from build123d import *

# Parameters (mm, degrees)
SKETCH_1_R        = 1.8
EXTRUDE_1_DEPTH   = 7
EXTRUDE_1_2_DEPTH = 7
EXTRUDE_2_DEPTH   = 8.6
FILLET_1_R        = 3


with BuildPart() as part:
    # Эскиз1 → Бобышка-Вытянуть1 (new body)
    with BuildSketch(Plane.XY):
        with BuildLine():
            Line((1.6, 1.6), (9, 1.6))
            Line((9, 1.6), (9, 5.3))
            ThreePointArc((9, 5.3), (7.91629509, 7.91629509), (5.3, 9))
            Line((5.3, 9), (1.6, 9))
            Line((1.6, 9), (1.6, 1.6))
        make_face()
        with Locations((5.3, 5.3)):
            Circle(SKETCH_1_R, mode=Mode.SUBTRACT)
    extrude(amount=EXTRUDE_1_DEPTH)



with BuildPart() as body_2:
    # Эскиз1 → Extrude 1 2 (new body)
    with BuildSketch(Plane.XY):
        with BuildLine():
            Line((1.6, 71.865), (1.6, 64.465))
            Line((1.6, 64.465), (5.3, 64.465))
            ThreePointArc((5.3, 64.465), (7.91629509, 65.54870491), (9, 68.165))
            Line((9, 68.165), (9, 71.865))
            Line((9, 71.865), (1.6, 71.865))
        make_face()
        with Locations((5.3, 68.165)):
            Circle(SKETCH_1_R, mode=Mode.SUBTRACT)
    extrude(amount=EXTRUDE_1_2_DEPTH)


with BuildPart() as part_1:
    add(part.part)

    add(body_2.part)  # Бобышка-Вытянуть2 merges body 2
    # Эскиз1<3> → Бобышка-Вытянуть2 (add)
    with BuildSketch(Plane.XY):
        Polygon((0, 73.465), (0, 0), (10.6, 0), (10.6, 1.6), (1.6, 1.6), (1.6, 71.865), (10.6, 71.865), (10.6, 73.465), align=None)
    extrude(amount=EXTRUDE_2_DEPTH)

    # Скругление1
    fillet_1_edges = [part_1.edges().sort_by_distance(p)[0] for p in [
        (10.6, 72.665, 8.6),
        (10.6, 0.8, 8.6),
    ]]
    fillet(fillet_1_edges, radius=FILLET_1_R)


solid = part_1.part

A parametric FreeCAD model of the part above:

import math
import FreeCAD as App
import Part
import Sketcher
from FreeCAD import Vector
Q = App.Units.Quantity


def edges_at(feature, points):
    """Names of the edges that pass closest to the given points."""
    edges = feature.Shape.Edges
    near = lambda p: min(range(len(edges)), key=lambda i: edges[i].distToShape(Part.Vertex(*p))[0])
    return sorted({f"Edge{near(p) + 1}" for p in points})

doc = App.newDocument("Part")
params = doc.addObject("Spreadsheet::Sheet", "Params")
for row, (alias, value) in enumerate([
    ("sketch1_diameter", "3.6 mm"),
    ("sketch1_radius", "3.7 mm"),
    ("sketch1_width", "7.4 mm"),
    ("pad1_length", "7 mm"),
    ("sketch2_diameter", "3.6 mm"),
    ("sketch2_radius", "3.7 mm"),
    ("sketch2_width", "3.7 mm"),
    ("pad2_length", "7 mm"),
    ("sketch3_width", "9 mm"),
    ("sketch3_width2", "10.6 mm"),
    ("sketch3_height", "1.6 mm"),
    ("pad3_length", "8.6 mm"),
    ("fillet_radius", "3 mm"),
], start=1):
    params.set(f"A{row}", alias)
    params.set(f"B{row}", "=" + value)
    params.setAlias(f"B{row}", alias)

body = doc.addObject("PartDesign::Body", "Body")

# Sketch on XY plane
sketch1 = body.newObject("Sketcher::SketchObject", "Sketch")
sketch1.AttachmentSupport = (doc.getObject("XY_Plane"), [""])
sketch1.MapMode = "FlatFace"
sketch1.addGeometry(Part.LineSegment(Vector(1.6, 1.6, 0), Vector(9, 1.6, 0)), False)
sketch1.addGeometry(Part.LineSegment(Vector(9, 1.6, 0), Vector(9, 5.3, 0)), False)
sketch1.addGeometry(Part.ArcOfCircle(Part.Circle(Vector(5.3, 5.3, 0), Vector(0, 0, 1), 3.7), math.radians(0), math.radians(90)), False)
sketch1.addGeometry(Part.LineSegment(Vector(5.3, 9, 0), Vector(1.6, 9, 0)), False)
sketch1.addGeometry(Part.LineSegment(Vector(1.6, 9, 0), Vector(1.6, 1.6, 0)), False)
sketch1.addGeometry(Part.Circle(Vector(5.3, 5.3, 0), Vector(0, 0, 1), 1.8), False)
sketch1.addConstraint(Sketcher.Constraint("Coincident", 0, 2, 1, 1))
sketch1.addConstraint(Sketcher.Constraint("Tangent", 1, 2, 2, 1))
sketch1.addConstraint(Sketcher.Constraint("Tangent", 2, 2, 3, 1))
sketch1.addConstraint(Sketcher.Constraint("Coincident", 3, 2, 4, 1))
sketch1.addConstraint(Sketcher.Constraint("Coincident", 4, 2, 0, 1))
sketch1.addConstraint(Sketcher.Constraint("Horizontal", 0))
sketch1.addConstraint(Sketcher.Constraint("Vertical", 1))
sketch1.addConstraint(Sketcher.Constraint("Horizontal", 3))
sketch1.addConstraint(Sketcher.Constraint("Vertical", 4))
sketch1.addConstraint(Sketcher.Constraint("Coincident", 5, 3, 2, 3))
sketch1.addConstraint(Sketcher.Constraint("Equal", 3, 1))
sketch1.addConstraint(Sketcher.Constraint("Diameter", 5, Q("3.6 mm")))
sketch1.addConstraint(Sketcher.Constraint("Radius", 2, Q("3.7 mm")))
sketch1.addConstraint(Sketcher.Constraint("DistanceX", 0, 1, 0, 2, Q("7.4 mm")))
sketch1.addConstraint(Sketcher.Constraint("DistanceX", -1, 1, 0, 2, Q("9 mm")))
sketch1.addConstraint(Sketcher.Constraint("DistanceY", -1, 1, 2, 2, Q("9 mm")))
sketch1.setExpression("Constraints[11]", "Params.sketch1_diameter")
sketch1.setExpression("Constraints[12]", "Params.sketch1_radius")
sketch1.setExpression("Constraints[13]", "Params.sketch1_width")
pad1 = body.newObject("PartDesign::Pad", "Pad")
pad1.Profile = sketch1
pad1.setExpression("Length", "Params.pad1_length")
body2 = doc.addObject("PartDesign::Body", "Body001")

# Sketch on XY plane
sketch2 = body2.newObject("Sketcher::SketchObject", "Sketch001")
sketch2.AttachmentSupport = (doc.getObject("XY_Plane001"), [""])
sketch2.MapMode = "FlatFace"
sketch2.addGeometry(Part.LineSegment(Vector(1.6, 71.865, 0), Vector(1.6, 64.465, 0)), False)
sketch2.addGeometry(Part.LineSegment(Vector(1.6, 64.465, 0), Vector(5.3, 64.465, 0)), False)
sketch2.addGeometry(Part.ArcOfCircle(Part.Circle(Vector(5.3, 68.165, 0), Vector(0, 0, 1), 3.7), math.radians(-90), math.radians(0)), False)
sketch2.addGeometry(Part.LineSegment(Vector(9, 68.165, 0), Vector(9, 71.865, 0)), False)
sketch2.addGeometry(Part.LineSegment(Vector(9, 71.865, 0), Vector(1.6, 71.865, 0)), False)
sketch2.addGeometry(Part.Circle(Vector(5.3, 68.165, 0), Vector(0, 0, 1), 1.8), False)
sketch2.addConstraint(Sketcher.Constraint("Coincident", 0, 2, 1, 1))
sketch2.addConstraint(Sketcher.Constraint("Tangent", 1, 2, 2, 1))
sketch2.addConstraint(Sketcher.Constraint("Tangent", 2, 2, 3, 1))
sketch2.addConstraint(Sketcher.Constraint("Coincident", 3, 2, 4, 1))
sketch2.addConstraint(Sketcher.Constraint("Coincident", 4, 2, 0, 1))
sketch2.addConstraint(Sketcher.Constraint("Vertical", 0))
sketch2.addConstraint(Sketcher.Constraint("Horizontal", 1))
sketch2.addConstraint(Sketcher.Constraint("Vertical", 3))
sketch2.addConstraint(Sketcher.Constraint("Horizontal", 4))
sketch2.addConstraint(Sketcher.Constraint("Coincident", 5, 3, 2, 3))
sketch2.addConstraint(Sketcher.Constraint("Equal", 4, 0))
sketch2.addConstraint(Sketcher.Constraint("Diameter", 5, Q("3.6 mm")))
sketch2.addConstraint(Sketcher.Constraint("Radius", 2, Q("3.7 mm")))
sketch2.addConstraint(Sketcher.Constraint("DistanceX", 1, 1, 1, 2, Q("3.7 mm")))
sketch2.addConstraint(Sketcher.Constraint("DistanceX", -1, 1, 2, 2, Q("9 mm")))
sketch2.addConstraint(Sketcher.Constraint("DistanceY", -1, 1, 2, 3, Q("68.165 mm")))
sketch2.setExpression("Constraints[11]", "Params.sketch2_diameter")
sketch2.setExpression("Constraints[12]", "Params.sketch2_radius")
sketch2.setExpression("Constraints[13]", "Params.sketch2_width")
pad2 = body2.newObject("PartDesign::Pad", "Pad001")
pad2.Profile = sketch2
pad2.setExpression("Length", "Params.pad2_length")
body.AllowCompound = True
doc.recompute()

boolean = body.newObject("PartDesign::Boolean", "Boolean")
boolean.Type = "Fuse"
boolean.addObjects([body2])

# Sketch on XY plane
sketch3 = body.newObject("Sketcher::SketchObject", "Sketch002")
sketch3.AttachmentSupport = (doc.getObject("XY_Plane"), [""])
sketch3.MapMode = "FlatFace"
sketch3.addGeometry(Part.LineSegment(Vector(0, 73.465, 0), Vector(0, 0, 0)), False)
sketch3.addGeometry(Part.LineSegment(Vector(0, 0, 0), Vector(10.6, 0, 0)), False)
sketch3.addGeometry(Part.LineSegment(Vector(10.6, 0, 0), Vector(10.6, 1.6, 0)), False)
sketch3.addGeometry(Part.LineSegment(Vector(10.6, 1.6, 0), Vector(1.6, 1.6, 0)), False)
sketch3.addGeometry(Part.LineSegment(Vector(1.6, 1.6, 0), Vector(1.6, 71.865, 0)), False)
sketch3.addGeometry(Part.LineSegment(Vector(1.6, 71.865, 0), Vector(10.6, 71.865, 0)), False)
sketch3.addGeometry(Part.LineSegment(Vector(10.6, 71.865, 0), Vector(10.6, 73.465, 0)), False)
sketch3.addGeometry(Part.LineSegment(Vector(10.6, 73.465, 0), Vector(0, 73.465, 0)), False)
sketch3.addConstraint(Sketcher.Constraint("Coincident", 0, 2, 1, 1))
sketch3.addConstraint(Sketcher.Constraint("Coincident", 1, 2, 2, 1))
sketch3.addConstraint(Sketcher.Constraint("Coincident", 2, 2, 3, 1))
sketch3.addConstraint(Sketcher.Constraint("Coincident", 3, 2, 4, 1))
sketch3.addConstraint(Sketcher.Constraint("Coincident", 4, 2, 5, 1))
sketch3.addConstraint(Sketcher.Constraint("Coincident", 5, 2, 6, 1))
sketch3.addConstraint(Sketcher.Constraint("Coincident", 6, 2, 7, 1))
sketch3.addConstraint(Sketcher.Constraint("Coincident", 7, 2, 0, 1))
sketch3.addConstraint(Sketcher.Constraint("Vertical", 0))
sketch3.addConstraint(Sketcher.Constraint("Horizontal", 1))
sketch3.addConstraint(Sketcher.Constraint("Vertical", 2))
sketch3.addConstraint(Sketcher.Constraint("Horizontal", 3))
sketch3.addConstraint(Sketcher.Constraint("Vertical", 4))
sketch3.addConstraint(Sketcher.Constraint("Horizontal", 5))
sketch3.addConstraint(Sketcher.Constraint("Vertical", 6))
sketch3.addConstraint(Sketcher.Constraint("Horizontal", 7))
sketch3.addConstraint(Sketcher.Constraint("Coincident", 0, 2, -1, 1))
sketch3.addConstraint(Sketcher.Constraint("Vertical", 2, 2, 5, 2))
sketch3.addConstraint(Sketcher.Constraint("Equal", 2, 6))
sketch3.addConstraint(Sketcher.Constraint("DistanceX", 3, 2, 3, 1, Q("9 mm")))
sketch3.addConstraint(Sketcher.Constraint("DistanceX", 1, 1, 1, 2, Q("10.6 mm")))
sketch3.addConstraint(Sketcher.Constraint("DistanceY", 2, 1, 2, 2, Q("1.6 mm")))
sketch3.addConstraint(Sketcher.Constraint("DistanceY", 0, 2, 0, 1, Q("73.465 mm")))
sketch3.setExpression("Constraints[19]", "Params.sketch3_width")
sketch3.setExpression("Constraints[20]", "Params.sketch3_width2")
sketch3.setExpression("Constraints[21]", "Params.sketch3_height")
pad3 = body.newObject("PartDesign::Pad", "Pad002")
pad3.Profile = sketch3
pad3.setExpression("Length", "Params.pad3_length")
doc.recompute()

fillet = body.newObject("PartDesign::Fillet", "Fillet")
fillet.Base = (pad3, edges_at(pad3, [(10.6, 72.665, 8.6), (10.6, 0.8, 8.6)]))
fillet.setExpression("Radius", "Params.fillet_radius")

doc.recompute()
